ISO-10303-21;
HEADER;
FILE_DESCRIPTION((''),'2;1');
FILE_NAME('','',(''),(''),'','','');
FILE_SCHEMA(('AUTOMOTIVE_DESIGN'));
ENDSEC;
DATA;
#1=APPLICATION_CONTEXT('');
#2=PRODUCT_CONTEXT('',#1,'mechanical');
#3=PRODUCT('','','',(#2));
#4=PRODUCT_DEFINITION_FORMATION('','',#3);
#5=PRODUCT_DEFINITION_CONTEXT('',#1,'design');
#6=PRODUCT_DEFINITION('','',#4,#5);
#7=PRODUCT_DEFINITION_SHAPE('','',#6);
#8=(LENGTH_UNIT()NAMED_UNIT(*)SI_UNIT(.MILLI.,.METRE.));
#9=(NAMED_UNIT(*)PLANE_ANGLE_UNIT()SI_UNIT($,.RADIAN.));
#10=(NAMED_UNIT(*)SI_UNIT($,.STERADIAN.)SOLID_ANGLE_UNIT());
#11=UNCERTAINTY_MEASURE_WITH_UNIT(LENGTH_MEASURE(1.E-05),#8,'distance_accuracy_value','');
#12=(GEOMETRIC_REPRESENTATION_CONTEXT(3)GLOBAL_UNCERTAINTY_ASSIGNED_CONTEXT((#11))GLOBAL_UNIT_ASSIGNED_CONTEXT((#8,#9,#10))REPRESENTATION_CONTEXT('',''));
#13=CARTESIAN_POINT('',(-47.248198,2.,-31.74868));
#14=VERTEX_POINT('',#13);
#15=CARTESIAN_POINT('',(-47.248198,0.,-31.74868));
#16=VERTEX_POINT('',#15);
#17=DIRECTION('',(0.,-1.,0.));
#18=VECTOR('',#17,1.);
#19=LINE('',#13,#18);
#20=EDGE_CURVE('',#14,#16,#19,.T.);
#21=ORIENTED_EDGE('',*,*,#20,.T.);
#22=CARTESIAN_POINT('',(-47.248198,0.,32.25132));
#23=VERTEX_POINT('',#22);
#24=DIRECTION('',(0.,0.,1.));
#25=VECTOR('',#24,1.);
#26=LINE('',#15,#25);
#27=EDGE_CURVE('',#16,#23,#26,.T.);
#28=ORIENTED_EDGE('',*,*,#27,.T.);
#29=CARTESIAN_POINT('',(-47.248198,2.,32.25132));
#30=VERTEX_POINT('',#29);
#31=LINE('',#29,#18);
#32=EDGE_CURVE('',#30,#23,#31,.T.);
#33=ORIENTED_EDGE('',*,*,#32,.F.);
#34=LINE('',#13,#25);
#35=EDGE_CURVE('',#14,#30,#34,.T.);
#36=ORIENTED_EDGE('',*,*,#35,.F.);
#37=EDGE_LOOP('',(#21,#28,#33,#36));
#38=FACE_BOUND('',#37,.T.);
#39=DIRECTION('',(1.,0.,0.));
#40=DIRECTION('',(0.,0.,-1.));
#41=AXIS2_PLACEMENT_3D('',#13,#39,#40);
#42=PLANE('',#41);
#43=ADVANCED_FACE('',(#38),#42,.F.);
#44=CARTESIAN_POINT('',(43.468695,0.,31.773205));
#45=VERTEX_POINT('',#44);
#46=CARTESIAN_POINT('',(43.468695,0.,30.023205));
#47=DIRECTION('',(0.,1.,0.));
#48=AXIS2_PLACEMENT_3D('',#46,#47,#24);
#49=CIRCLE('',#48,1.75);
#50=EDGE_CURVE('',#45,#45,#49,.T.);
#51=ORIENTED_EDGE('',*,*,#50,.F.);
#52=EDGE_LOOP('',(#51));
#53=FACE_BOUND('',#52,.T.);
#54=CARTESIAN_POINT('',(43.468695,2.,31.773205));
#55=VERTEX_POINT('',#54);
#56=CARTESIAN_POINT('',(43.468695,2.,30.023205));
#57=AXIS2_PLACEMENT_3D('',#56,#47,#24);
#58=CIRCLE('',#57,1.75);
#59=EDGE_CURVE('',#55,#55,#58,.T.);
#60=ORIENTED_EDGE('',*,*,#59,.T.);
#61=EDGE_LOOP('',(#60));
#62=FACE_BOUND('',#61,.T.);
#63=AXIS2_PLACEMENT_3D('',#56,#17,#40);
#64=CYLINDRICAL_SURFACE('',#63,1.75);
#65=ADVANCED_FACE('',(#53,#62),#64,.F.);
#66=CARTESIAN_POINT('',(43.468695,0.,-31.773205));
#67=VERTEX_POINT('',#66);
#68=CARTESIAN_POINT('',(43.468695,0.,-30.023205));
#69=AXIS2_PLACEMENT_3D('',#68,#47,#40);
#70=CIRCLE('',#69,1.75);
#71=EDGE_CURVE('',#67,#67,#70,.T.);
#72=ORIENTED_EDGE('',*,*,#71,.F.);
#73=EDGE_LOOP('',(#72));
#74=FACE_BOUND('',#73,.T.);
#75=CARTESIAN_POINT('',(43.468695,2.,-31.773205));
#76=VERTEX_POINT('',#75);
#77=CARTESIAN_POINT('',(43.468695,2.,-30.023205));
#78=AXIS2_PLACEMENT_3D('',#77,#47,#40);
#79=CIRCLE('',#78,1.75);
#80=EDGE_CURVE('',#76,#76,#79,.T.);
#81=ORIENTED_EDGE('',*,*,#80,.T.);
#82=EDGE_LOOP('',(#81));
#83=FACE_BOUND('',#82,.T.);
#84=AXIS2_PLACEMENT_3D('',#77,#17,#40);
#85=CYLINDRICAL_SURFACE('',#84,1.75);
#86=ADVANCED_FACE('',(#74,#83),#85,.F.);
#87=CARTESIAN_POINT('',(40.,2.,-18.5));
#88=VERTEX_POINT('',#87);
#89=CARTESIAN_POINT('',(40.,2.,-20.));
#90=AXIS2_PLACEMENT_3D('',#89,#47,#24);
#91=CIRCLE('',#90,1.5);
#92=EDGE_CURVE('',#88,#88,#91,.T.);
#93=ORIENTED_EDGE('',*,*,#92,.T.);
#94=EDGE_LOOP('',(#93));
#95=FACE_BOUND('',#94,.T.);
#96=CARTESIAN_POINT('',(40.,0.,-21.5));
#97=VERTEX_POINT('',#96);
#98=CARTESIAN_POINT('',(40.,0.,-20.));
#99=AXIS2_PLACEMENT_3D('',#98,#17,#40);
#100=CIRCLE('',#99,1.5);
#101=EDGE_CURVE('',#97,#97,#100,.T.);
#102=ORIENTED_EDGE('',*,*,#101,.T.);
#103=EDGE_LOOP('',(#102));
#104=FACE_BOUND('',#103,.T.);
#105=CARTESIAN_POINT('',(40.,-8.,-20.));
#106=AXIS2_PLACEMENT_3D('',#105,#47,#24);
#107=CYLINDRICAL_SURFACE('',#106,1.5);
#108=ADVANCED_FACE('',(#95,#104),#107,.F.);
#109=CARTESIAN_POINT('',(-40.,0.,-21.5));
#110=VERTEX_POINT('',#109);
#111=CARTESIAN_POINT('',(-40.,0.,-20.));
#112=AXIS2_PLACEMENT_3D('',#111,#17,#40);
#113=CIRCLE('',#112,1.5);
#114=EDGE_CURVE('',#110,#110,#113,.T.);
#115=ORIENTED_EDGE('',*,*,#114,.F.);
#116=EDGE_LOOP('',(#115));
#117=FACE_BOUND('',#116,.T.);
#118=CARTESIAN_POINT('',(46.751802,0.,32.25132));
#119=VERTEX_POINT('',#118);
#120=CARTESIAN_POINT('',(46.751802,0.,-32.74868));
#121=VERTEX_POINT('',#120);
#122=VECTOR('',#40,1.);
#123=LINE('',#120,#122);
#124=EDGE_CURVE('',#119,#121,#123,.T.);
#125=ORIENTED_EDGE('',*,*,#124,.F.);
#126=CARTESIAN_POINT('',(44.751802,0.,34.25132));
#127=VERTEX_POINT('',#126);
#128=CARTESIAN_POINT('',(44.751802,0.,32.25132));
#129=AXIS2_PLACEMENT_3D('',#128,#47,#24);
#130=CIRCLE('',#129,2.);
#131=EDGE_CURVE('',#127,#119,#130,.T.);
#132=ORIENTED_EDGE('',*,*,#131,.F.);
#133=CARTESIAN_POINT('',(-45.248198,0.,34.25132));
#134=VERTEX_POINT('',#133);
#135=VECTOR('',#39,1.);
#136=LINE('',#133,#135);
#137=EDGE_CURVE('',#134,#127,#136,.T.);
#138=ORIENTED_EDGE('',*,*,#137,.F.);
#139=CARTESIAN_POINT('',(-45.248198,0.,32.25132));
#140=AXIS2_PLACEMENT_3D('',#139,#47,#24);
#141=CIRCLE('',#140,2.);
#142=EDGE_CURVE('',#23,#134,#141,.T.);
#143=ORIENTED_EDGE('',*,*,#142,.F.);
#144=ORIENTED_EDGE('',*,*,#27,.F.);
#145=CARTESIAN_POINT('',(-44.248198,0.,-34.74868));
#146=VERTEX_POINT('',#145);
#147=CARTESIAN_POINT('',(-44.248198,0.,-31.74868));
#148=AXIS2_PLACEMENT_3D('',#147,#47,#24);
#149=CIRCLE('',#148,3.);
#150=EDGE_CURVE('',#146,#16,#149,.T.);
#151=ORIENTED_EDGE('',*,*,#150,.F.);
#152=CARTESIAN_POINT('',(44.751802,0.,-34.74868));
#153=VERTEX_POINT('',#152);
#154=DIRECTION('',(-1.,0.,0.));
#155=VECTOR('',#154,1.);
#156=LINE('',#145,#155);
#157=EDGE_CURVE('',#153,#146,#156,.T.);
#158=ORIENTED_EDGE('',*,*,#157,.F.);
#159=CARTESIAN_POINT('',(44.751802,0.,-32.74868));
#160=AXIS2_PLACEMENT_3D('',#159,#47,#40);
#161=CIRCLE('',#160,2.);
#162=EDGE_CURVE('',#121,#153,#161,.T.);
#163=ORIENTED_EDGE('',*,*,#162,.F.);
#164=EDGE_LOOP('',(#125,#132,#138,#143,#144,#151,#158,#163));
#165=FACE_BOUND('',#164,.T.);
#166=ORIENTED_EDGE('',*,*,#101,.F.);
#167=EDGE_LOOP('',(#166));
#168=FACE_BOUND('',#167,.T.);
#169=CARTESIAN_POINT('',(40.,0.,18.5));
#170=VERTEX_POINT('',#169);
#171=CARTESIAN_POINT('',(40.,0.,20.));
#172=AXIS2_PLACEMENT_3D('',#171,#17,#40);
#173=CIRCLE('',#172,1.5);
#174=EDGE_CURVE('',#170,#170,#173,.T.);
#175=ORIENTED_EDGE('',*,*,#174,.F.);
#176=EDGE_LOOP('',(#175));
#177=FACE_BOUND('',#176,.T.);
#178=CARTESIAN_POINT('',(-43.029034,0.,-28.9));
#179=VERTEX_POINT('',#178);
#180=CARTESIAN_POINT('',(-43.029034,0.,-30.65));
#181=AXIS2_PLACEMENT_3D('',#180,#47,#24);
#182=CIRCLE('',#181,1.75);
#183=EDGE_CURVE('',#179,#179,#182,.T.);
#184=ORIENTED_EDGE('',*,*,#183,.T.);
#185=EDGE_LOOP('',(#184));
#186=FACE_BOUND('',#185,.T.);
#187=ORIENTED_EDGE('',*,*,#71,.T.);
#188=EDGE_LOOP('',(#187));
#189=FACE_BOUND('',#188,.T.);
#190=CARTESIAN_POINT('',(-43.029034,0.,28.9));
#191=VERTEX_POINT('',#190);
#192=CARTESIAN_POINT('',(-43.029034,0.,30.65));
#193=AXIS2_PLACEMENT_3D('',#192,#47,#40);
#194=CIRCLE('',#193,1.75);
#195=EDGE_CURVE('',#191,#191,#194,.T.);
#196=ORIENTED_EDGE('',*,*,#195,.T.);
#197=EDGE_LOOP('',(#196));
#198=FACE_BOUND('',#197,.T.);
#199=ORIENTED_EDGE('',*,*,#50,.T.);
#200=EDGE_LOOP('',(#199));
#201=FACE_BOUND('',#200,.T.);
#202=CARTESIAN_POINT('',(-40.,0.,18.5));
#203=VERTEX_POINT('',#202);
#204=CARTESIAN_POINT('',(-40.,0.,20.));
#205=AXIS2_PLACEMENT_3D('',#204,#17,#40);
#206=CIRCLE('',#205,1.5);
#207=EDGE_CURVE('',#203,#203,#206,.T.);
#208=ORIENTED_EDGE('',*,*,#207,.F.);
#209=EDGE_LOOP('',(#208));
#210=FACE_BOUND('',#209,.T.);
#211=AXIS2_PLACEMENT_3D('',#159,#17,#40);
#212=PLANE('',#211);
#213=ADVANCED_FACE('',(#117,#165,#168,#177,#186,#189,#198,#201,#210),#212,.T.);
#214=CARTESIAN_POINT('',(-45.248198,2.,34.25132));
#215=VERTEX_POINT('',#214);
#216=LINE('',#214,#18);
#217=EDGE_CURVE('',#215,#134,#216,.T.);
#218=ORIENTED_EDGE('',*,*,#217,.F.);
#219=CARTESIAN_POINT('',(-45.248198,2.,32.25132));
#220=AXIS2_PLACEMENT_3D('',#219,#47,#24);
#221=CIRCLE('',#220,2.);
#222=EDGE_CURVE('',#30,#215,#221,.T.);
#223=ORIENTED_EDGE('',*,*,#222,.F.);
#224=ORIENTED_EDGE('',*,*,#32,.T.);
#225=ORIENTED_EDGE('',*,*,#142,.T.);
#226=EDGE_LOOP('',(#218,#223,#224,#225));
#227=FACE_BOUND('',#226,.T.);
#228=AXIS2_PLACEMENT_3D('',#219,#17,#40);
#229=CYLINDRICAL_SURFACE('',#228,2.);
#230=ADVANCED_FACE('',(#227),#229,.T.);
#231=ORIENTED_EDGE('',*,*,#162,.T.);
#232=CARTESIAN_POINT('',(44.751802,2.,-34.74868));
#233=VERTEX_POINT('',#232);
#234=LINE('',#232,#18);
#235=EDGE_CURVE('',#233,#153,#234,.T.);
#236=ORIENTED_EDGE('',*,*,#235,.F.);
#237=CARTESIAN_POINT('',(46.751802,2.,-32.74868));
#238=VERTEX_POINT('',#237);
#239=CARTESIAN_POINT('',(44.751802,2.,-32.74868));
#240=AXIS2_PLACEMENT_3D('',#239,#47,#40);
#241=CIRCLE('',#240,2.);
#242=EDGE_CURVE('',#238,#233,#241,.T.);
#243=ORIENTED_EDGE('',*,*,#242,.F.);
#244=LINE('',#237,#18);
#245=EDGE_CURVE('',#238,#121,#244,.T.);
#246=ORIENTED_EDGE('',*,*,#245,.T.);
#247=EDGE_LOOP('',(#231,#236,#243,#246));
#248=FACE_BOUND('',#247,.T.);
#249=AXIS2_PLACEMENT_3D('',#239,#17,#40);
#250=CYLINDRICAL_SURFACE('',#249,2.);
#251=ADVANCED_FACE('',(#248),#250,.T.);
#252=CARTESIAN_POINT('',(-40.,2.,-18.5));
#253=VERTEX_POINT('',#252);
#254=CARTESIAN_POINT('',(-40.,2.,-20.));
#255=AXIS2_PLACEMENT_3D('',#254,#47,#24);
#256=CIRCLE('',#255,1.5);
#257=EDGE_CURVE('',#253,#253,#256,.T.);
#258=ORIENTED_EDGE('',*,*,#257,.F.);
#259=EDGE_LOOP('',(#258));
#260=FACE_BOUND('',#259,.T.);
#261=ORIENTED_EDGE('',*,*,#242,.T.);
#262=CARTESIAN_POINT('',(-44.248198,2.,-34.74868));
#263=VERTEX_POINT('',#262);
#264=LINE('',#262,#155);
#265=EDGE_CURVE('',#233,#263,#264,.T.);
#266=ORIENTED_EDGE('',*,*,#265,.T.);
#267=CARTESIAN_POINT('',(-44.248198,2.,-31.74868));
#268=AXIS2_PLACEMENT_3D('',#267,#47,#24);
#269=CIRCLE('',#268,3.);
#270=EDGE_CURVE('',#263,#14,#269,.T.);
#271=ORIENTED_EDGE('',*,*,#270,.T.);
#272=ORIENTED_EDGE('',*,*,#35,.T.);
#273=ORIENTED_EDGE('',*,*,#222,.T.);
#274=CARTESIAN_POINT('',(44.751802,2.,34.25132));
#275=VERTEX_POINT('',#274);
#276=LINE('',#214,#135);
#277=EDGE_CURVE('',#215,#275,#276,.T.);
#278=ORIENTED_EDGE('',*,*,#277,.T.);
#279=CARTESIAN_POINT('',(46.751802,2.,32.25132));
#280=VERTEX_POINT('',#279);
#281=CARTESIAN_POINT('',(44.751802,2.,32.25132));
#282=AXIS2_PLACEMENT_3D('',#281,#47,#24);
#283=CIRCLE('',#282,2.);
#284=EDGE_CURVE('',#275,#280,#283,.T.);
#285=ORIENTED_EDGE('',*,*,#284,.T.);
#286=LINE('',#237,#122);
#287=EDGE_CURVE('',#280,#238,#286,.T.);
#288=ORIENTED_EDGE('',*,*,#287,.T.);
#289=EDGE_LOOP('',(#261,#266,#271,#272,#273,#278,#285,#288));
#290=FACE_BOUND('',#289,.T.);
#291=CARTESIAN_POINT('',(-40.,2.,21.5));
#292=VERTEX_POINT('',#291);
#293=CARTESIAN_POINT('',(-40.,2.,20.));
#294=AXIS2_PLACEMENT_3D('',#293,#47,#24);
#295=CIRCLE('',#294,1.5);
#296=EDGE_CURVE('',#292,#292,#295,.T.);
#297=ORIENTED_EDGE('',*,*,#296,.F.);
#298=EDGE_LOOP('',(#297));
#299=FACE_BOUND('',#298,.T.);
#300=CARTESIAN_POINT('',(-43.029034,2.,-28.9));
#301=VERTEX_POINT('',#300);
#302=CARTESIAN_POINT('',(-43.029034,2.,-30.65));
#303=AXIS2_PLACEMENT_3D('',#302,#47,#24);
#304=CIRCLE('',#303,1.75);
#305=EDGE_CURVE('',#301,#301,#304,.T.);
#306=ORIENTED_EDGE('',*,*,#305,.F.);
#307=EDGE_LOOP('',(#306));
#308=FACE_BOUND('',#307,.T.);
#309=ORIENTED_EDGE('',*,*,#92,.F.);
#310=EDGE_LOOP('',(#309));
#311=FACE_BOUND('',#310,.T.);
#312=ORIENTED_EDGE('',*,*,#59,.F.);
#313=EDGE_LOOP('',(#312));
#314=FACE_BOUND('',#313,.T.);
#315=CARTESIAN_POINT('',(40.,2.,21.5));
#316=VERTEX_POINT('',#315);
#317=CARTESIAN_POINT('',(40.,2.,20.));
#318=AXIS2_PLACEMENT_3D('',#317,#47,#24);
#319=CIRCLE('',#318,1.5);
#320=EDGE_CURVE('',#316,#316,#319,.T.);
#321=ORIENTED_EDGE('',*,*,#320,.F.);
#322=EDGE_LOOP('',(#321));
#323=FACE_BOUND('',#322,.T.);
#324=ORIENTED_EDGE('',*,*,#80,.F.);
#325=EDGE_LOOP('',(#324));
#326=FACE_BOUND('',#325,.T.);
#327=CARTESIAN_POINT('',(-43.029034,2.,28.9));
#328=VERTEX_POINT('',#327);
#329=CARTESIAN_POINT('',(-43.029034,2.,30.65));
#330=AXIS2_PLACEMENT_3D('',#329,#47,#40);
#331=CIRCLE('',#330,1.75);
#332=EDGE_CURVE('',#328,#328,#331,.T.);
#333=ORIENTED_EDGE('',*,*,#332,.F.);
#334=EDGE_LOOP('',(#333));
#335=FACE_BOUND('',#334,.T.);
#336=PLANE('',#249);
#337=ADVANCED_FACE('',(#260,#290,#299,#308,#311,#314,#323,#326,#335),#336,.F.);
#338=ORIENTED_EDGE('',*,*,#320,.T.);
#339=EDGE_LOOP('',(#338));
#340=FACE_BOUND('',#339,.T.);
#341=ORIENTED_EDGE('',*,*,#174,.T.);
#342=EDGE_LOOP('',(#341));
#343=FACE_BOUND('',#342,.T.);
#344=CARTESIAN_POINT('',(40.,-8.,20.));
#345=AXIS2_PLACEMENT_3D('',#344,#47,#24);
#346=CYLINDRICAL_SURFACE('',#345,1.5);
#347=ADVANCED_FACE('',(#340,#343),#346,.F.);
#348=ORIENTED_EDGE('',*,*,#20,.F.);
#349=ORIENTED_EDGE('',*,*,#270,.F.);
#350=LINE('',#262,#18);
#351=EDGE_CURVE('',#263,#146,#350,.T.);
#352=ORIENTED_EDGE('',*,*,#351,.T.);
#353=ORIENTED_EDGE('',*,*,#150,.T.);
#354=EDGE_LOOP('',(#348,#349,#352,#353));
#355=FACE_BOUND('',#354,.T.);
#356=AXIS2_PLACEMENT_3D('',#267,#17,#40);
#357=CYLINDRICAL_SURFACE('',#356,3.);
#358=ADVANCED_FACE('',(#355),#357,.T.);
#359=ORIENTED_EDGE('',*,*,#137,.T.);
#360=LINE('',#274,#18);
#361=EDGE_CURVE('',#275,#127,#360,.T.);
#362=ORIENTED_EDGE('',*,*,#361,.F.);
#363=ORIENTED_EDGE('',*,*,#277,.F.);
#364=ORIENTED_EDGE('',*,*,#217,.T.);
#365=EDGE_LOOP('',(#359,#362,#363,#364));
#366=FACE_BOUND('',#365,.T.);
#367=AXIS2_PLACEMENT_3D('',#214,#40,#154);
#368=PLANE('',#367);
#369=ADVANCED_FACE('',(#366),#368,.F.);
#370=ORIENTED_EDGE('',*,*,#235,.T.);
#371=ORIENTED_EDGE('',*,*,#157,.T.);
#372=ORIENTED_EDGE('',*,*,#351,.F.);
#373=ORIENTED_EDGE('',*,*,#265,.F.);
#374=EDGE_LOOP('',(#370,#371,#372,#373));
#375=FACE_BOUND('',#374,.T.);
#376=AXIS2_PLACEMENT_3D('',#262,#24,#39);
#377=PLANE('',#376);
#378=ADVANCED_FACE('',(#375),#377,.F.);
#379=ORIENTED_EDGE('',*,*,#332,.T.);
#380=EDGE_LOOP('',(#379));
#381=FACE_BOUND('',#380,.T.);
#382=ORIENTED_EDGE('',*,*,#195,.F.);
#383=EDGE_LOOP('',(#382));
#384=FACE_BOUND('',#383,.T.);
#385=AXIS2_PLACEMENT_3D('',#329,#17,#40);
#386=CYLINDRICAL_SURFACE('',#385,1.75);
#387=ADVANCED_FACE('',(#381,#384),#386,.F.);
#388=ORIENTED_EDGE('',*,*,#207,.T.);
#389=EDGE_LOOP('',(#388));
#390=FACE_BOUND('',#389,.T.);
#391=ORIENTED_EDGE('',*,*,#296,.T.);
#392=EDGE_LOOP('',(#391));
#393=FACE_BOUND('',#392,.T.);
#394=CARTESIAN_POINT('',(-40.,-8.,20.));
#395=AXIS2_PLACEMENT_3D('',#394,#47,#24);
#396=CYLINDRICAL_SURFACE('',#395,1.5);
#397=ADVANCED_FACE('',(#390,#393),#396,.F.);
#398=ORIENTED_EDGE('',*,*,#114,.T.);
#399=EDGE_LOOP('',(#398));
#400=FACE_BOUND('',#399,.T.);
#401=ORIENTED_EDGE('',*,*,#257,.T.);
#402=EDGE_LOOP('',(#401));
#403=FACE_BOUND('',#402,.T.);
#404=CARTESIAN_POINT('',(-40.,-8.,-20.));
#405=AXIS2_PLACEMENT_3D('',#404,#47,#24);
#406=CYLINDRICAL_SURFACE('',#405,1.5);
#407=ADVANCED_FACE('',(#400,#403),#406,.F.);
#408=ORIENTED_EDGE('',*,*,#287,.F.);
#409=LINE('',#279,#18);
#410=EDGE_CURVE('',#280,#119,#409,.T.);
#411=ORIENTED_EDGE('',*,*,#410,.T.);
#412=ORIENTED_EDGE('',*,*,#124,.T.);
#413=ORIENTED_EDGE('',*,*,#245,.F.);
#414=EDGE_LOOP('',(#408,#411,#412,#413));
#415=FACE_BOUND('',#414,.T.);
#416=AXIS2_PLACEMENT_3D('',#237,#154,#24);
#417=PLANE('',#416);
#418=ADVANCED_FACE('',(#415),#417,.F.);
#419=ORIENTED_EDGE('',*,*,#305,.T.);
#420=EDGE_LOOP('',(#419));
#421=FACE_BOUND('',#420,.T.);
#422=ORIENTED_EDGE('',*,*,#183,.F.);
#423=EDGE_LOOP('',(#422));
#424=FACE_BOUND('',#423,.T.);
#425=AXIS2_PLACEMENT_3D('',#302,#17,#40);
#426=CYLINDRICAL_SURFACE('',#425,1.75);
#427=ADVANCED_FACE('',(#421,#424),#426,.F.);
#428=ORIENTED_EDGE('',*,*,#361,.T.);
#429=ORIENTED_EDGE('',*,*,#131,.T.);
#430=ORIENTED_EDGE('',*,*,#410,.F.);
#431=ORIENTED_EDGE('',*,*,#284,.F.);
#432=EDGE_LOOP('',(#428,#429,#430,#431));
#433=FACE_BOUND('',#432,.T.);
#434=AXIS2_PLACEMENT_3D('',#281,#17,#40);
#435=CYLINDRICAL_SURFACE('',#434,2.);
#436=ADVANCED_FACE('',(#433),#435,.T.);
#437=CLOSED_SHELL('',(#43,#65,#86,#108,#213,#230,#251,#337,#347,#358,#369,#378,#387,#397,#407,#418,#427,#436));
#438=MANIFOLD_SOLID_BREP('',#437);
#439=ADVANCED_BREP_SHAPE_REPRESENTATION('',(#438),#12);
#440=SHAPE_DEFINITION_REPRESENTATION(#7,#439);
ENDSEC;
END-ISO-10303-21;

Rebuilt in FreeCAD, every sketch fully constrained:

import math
import FreeCAD as App
import Part
import Sketcher

V = App.Vector

doc = App.newDocument("Part")
body = doc.addObject("PartDesign::Body", "Body")

sketch1 = doc.addObject("Sketcher::SketchObject", "Sketch")
body.addObject(sketch1)
sketch1.AttachmentSupport = (doc.XZ_Plane, [""])
sketch1.MapMode = "FlatFace"
sketch1.addGeometry([
    Part.LineSegment(V(44.8, -34.7, 0), V(-44.2, -34.7, 0)),
    Part.ArcOfCircle(Part.Circle(V(-44.2, -31.7, 0), V(0, 0, 1), 3), math.radians(180), math.radians(270)),
    Part.LineSegment(V(-47.2, -31.7, 0), V(-47.2, 32.3, 0)),
    Part.ArcOfCircle(Part.Circle(V(-45.2, 32.3, 0), V(0, 0, 1), 2), math.radians(90), math.radians(180)),
    Part.LineSegment(V(-45.2, 34.3, 0), V(44.8, 34.3, 0)),
    Part.ArcOfCircle(Part.Circle(V(44.8, 32.3, 0), V(0, 0, 1), 2), math.radians(0), math.radians(90)),
    Part.LineSegment(V(46.8, 32.3, 0), V(46.8, -32.7, 0)),
    Part.ArcOfCircle(Part.Circle(V(44.8, -32.7, 0), V(0, 0, 1), 2), math.radians(-90), math.radians(0)),
    Part.Circle(V(43.5, 30, 0), V(0, 0, 1), 1.8),
    Part.Circle(V(-43, 30.6, 0), V(0, 0, 1), 1.8),
    Part.Circle(V(43.5, -30, 0), V(0, 0, 1), 1.8),
    Part.Circle(V(-43, -30.6, 0), V(0, 0, 1), 1.8),
], False)
sketch1.addConstraint([
    Sketcher.Constraint("Tangent", 0, 2, 1, 2),
    Sketcher.Constraint("Tangent", 1, 1, 2, 1),
    Sketcher.Constraint("Tangent", 2, 2, 3, 2),
    Sketcher.Constraint("Tangent", 3, 1, 4, 1),
    Sketcher.Constraint("Tangent", 4, 2, 5, 2),
    Sketcher.Constraint("Tangent", 5, 1, 6, 1),
    Sketcher.Constraint("Tangent", 6, 2, 7, 2),
    Sketcher.Constraint("Tangent", 7, 1, 0, 1),
    Sketcher.Constraint("Horizontal", 0),
    Sketcher.Constraint("Vertical", 2),
    Sketcher.Constraint("Horizontal", 4),
    Sketcher.Constraint("Vertical", 6),
    Sketcher.Constraint("Equal", 3, 5),
    Sketcher.Constraint("Equal", 5, 7),
    Sketcher.Constraint("Equal", 8, 9),
    Sketcher.Constraint("Equal", 9, 10),
    Sketcher.Constraint("Equal", 10, 11),
    Sketcher.Constraint("Symmetric", 8, 3, 10, 3, -1),
    Sketcher.Constraint("Symmetric", 9, 3, 11, 3, -1),
    Sketcher.Constraint("Radius", 1, 3.0),
    Sketcher.Constraint("Radius", 3, 2.0),
    Sketcher.Constraint("Diameter", 8, 3.5),
    Sketcher.Constraint("DistanceX", 0, 2, 0, 1, 89.0),
    Sketcher.Constraint("DistanceY", 2, 1, 2, 2, 64.0),
    Sketcher.Constraint("DistanceY", 11, 3, 9, 3, 61.3),
    Sketcher.Constraint("DistanceY", 1, 3, -1, 1, 31.74868),
    Sketcher.Constraint("DistanceX", 9, 3, 8, 3, 86.497729),
    Sketcher.Constraint("DistanceY", 10, 3, 8, 3, 60.04641),
    Sketcher.Constraint("DistanceX", 1, 3, -1, 1, 44.248198),
    Sketcher.Constraint("DistanceX", -1, 1, 8, 3, 43.468695),
])
pad1 = doc.addObject("PartDesign::Pad", "Pad")
body.addObject(pad1)
pad1.Profile = sketch1
pad1.Length = 2
pad1.Reversed = True

sketch2 = doc.addObject("Sketcher::SketchObject", "Sketch001")
body.addObject(sketch2)
sketch2.AttachmentSupport = (doc.XZ_Plane, [""])
sketch2.MapMode = "FlatFace"
sketch2.AttachmentOffset = App.Placement(V(0, 0, -2), App.Rotation())
sketch2.addGeometry([
    Part.Circle(V(-40, 20, 0), V(0, 0, 1), 1.5),
    Part.Circle(V(40, 20, 0), V(0, 0, 1), 1.5),
    Part.Circle(V(40, -20, 0), V(0, 0, 1), 1.5),
    Part.Circle(V(-40, -20, 0), V(0, 0, 1), 1.5),
], False)
sketch2.addConstraint([
    Sketcher.Constraint("Equal", 0, 1),
    Sketcher.Constraint("Equal", 1, 2),
    Sketcher.Constraint("Equal", 2, 3),
    Sketcher.Constraint("Symmetric", 0, 3, 2, 3, -1, 1),
    Sketcher.Constraint("Symmetric", 1, 3, 3, 3, -1, 1),
    Sketcher.Constraint("Symmetric", 0, 3, 1, 3, -2),
    Sketcher.Constraint("Diameter", 0, 3.0),
    Sketcher.Constraint("DistanceX", 0, 3, -1, 1, 40.0),
    Sketcher.Constraint("DistanceY", -1, 1, 0, 3, 20.0),
])
pocket1 = doc.addObject("PartDesign::Pocket", "Pocket")
body.addObject(pocket1)
pocket1.Profile = sketch2
pocket1.Length = 10
pocket1.Reversed = True

doc.recompute()
